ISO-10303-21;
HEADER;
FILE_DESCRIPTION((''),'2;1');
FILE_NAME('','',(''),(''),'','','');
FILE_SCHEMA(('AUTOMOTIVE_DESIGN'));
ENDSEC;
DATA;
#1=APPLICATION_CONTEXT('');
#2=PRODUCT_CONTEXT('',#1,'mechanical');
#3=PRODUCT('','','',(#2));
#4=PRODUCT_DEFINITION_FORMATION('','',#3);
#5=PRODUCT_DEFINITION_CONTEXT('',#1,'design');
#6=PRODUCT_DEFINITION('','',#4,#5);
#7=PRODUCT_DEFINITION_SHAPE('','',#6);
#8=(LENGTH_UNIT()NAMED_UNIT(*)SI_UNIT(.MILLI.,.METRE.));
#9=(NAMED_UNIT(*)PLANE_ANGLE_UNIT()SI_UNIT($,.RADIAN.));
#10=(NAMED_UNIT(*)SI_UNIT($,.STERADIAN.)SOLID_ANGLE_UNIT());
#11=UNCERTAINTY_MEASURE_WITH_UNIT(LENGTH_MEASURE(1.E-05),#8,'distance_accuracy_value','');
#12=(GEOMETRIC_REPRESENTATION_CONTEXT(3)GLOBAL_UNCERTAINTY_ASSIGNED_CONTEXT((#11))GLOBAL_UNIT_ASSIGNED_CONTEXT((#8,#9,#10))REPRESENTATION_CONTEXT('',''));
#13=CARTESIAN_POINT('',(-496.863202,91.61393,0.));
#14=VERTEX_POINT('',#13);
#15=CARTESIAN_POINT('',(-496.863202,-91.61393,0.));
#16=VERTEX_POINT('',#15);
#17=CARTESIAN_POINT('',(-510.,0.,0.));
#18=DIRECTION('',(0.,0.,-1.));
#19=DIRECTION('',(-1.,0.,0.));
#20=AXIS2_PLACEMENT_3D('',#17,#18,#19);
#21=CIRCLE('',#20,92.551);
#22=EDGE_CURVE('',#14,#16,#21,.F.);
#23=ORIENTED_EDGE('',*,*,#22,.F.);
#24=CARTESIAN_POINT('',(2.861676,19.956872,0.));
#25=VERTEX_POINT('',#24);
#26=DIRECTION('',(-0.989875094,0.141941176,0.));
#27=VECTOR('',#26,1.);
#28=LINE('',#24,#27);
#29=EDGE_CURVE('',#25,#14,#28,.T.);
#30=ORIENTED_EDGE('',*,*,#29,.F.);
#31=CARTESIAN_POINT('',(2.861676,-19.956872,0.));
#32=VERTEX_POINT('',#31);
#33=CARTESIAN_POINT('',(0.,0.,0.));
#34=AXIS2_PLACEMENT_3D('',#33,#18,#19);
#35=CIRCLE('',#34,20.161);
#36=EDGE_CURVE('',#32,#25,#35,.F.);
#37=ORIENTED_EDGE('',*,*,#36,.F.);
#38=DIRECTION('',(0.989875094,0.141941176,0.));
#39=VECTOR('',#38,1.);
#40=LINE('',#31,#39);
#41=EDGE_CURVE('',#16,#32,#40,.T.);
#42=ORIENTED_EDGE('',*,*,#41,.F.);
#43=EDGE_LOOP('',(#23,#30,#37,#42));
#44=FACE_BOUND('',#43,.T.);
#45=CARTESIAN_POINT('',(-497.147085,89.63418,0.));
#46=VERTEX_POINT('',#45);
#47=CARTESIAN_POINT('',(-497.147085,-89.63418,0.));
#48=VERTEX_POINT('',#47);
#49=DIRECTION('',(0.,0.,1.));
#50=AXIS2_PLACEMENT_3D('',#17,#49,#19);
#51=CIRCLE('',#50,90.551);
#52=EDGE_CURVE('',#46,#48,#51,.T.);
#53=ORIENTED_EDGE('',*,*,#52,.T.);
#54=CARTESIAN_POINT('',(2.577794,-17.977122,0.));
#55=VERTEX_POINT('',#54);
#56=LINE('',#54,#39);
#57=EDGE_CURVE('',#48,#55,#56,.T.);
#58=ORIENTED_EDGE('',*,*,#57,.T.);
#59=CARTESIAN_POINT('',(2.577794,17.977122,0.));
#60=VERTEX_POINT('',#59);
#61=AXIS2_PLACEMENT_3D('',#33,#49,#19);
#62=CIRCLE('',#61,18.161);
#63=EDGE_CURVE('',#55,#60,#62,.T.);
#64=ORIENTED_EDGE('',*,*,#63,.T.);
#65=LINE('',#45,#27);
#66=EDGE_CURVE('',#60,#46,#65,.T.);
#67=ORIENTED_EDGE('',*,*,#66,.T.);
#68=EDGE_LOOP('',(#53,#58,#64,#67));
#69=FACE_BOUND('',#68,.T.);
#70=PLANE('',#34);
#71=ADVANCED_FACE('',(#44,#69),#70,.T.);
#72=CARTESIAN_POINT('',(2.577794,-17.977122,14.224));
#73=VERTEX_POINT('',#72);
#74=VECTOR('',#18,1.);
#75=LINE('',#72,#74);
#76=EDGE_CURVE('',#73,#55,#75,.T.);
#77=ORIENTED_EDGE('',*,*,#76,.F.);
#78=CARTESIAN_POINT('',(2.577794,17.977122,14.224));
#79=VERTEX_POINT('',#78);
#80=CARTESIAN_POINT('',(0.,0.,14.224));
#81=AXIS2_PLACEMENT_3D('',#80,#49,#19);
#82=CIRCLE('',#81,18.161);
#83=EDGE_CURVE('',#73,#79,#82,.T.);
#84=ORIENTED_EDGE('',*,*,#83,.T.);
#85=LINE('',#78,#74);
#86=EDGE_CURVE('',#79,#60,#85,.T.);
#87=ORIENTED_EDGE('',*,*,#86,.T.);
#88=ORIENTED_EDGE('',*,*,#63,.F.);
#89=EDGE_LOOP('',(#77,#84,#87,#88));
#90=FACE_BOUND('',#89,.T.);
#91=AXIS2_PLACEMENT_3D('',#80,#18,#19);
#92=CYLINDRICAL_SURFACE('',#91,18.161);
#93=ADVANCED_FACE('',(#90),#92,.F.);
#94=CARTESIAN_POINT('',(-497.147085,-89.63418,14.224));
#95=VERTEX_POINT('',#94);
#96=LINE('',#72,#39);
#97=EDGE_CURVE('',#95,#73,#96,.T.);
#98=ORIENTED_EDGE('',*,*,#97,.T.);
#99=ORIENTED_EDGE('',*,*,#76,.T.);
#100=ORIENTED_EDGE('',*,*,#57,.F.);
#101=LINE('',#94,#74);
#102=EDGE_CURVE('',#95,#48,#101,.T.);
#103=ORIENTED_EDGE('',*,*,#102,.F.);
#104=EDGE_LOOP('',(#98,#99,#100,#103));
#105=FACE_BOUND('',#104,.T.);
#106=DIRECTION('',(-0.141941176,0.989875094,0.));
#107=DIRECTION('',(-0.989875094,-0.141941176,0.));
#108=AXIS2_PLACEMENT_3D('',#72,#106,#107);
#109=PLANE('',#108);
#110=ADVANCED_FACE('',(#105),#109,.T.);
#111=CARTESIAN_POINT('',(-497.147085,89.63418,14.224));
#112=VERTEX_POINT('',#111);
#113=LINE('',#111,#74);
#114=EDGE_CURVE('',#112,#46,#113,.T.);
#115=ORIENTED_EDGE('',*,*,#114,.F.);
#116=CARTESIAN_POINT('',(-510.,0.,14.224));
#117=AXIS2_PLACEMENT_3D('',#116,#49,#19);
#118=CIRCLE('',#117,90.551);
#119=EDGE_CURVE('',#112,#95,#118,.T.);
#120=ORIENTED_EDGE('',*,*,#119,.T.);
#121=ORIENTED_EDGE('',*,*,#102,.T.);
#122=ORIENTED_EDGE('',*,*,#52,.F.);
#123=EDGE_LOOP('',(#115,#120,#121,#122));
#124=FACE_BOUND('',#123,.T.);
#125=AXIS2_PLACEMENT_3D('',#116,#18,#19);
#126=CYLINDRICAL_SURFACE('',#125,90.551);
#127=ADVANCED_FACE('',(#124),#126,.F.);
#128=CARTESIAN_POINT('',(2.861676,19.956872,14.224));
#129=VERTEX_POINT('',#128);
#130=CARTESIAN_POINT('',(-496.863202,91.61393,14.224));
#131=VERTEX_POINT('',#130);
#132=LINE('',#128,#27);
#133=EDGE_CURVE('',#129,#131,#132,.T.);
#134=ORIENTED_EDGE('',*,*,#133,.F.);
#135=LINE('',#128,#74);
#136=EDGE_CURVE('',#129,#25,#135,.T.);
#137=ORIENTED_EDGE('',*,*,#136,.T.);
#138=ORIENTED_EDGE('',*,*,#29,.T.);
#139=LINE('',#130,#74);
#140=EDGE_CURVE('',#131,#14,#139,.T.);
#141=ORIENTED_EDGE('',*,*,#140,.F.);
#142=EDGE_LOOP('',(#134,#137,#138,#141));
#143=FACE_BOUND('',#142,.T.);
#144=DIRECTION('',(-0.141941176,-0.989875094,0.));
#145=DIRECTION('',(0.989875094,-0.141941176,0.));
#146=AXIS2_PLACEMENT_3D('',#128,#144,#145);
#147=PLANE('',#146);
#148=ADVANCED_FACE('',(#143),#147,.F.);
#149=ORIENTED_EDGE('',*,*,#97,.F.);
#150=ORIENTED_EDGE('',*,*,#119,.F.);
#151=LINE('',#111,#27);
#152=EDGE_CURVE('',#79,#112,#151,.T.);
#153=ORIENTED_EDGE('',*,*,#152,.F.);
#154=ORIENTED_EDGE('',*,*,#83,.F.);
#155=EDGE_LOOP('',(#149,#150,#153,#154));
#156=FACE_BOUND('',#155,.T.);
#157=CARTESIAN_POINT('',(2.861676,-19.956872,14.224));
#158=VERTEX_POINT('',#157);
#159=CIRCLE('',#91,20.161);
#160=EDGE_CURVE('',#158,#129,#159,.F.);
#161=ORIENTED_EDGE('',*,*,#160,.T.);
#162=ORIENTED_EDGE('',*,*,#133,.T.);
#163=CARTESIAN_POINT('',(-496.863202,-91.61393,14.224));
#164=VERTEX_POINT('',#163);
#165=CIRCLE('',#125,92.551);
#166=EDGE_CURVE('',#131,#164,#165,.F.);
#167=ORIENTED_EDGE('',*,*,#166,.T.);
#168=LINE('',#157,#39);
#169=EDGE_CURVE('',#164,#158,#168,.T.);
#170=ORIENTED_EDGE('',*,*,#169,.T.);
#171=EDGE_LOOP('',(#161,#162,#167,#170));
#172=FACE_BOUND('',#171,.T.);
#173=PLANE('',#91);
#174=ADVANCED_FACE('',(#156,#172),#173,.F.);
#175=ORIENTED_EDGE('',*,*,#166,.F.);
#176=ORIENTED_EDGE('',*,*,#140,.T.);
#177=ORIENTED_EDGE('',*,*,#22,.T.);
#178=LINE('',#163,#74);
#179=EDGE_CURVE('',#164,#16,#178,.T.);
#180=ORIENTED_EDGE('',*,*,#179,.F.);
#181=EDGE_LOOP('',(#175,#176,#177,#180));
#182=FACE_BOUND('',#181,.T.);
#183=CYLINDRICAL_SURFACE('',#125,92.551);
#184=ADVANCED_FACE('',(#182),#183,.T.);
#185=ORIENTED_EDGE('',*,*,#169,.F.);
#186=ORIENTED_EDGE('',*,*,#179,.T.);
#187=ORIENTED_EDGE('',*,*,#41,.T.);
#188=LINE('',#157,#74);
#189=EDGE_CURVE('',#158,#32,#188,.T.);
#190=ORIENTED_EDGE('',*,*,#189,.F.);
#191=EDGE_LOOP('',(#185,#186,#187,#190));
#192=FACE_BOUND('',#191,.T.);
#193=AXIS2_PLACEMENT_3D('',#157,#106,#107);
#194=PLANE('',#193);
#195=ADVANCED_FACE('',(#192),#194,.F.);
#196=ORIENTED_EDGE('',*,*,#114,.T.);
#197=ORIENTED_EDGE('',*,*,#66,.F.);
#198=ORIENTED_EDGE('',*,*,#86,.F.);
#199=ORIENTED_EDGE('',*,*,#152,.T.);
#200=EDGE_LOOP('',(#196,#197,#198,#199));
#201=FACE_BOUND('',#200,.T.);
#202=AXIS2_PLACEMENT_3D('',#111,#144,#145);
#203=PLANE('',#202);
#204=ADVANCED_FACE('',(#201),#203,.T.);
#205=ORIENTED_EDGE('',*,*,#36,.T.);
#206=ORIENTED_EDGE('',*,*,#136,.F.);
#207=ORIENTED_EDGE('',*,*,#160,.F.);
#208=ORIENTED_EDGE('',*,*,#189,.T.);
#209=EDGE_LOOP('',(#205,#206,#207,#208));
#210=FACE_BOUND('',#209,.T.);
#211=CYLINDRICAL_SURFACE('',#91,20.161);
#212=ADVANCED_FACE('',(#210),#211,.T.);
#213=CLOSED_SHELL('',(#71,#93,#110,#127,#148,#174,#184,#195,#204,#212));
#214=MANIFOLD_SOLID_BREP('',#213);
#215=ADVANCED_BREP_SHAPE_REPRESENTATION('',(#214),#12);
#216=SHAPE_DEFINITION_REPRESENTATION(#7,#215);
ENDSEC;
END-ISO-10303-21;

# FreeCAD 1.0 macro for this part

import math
import FreeCAD as App
import Part
import Sketcher

V = App.Vector
Q = App.Units.Quantity

doc = App.newDocument("Part")
body = doc.addObject("PartDesign::Body", "Body")

# Sketch on XY plane
sketch1 = body.newObject("Sketcher::SketchObject", "Sketch")
sketch1.AttachmentSupport = (doc.getObject("XY_Plane"), [""])
sketch1.MapMode = "FlatFace"
sketch1.addGeometry(Part.LineSegment(V(2.861676, 19.956872, 0), V(-496.863202, 91.61393, 0)), False)
sketch1.addGeometry(Part.ArcOfCircle(Part.Circle(V(-510, 0, 0), V(0, 0, 1), 92.551), math.radians(81.839811), math.radians(278.160189)), False)
sketch1.addGeometry(Part.LineSegment(V(-496.863202, -91.61393, 0), V(2.861676, -19.956872, 0)), False)
sketch1.addGeometry(Part.ArcOfCircle(Part.Circle(V(0, 0, 0), V(0, 0, 1), 20.161), math.radians(-81.839811), math.radians(81.839811)), False)
sketch1.addGeometry(Part.LineSegment(V(-497.147085, 89.63418, 0), V(2.577794, 17.977122, 0)), False)
sketch1.addGeometry(Part.ArcOfCircle(Part.Circle(V(0, 0, 0), V(0, 0, 1), 18.161), math.radians(-81.839811), math.radians(81.839811)), False)
sketch1.addGeometry(Part.LineSegment(V(2.577794, -17.977122, 0), V(-497.147085, -89.63418, 0)), False)
sketch1.addGeometry(Part.ArcOfCircle(Part.Circle(V(-510, 0, 0), V(0, 0, 1), 90.551), math.radians(81.839811), math.radians(278.160189)), False)
sketch1.addConstraint(Sketcher.Constraint("Tangent", 0, 2, 1, 1))
sketch1.addConstraint(Sketcher.Constraint("Tangent", 1, 2, 2, 1))
sketch1.addConstraint(Sketcher.Constraint("Tangent", 2, 2, 3, 1))
sketch1.addConstraint(Sketcher.Constraint("Tangent", 3, 2, 0, 1))
sketch1.addConstraint(Sketcher.Constraint("Tangent", 4, 2, 5, 2))
sketch1.addConstraint(Sketcher.Constraint("Tangent", 5, 1, 6, 1))
sketch1.addConstraint(Sketcher.Constraint("Tangent", 6, 2, 7, 2))
sketch1.addConstraint(Sketcher.Constraint("Tangent", 7, 1, 4, 1))
sketch1.addConstraint(Sketcher.Constraint("Coincident", 3, 3, -1, 1))
sketch1.addConstraint(Sketcher.Constraint("Coincident", 5, 3, -1, 1))
sketch1.addConstraint(Sketcher.Constraint("Coincident", 7, 3, 1, 3))
sketch1.addConstraint(Sketcher.Constraint("PointOnObject", 1, 3, -1))
sketch1.addConstraint(Sketcher.Constraint("Parallel", 0, 4))
sketch1.addConstraint(Sketcher.Constraint("Radius", 5, Q("0.715 in")))
sketch1.addConstraint(Sketcher.Constraint("Radius", 7, Q("3.565 in")))
sketch1.addConstraint(Sketcher.Constraint("Radius", 1, Q("92.551 mm")))
sketch1.addConstraint(Sketcher.Constraint("Distance", 0, Q("504.836298 mm")))
pad1 = body.newObject("PartDesign::Pad", "Pad")
pad1.Profile = sketch1
pad1.Length = Q("0.56 in")

doc.recompute()
